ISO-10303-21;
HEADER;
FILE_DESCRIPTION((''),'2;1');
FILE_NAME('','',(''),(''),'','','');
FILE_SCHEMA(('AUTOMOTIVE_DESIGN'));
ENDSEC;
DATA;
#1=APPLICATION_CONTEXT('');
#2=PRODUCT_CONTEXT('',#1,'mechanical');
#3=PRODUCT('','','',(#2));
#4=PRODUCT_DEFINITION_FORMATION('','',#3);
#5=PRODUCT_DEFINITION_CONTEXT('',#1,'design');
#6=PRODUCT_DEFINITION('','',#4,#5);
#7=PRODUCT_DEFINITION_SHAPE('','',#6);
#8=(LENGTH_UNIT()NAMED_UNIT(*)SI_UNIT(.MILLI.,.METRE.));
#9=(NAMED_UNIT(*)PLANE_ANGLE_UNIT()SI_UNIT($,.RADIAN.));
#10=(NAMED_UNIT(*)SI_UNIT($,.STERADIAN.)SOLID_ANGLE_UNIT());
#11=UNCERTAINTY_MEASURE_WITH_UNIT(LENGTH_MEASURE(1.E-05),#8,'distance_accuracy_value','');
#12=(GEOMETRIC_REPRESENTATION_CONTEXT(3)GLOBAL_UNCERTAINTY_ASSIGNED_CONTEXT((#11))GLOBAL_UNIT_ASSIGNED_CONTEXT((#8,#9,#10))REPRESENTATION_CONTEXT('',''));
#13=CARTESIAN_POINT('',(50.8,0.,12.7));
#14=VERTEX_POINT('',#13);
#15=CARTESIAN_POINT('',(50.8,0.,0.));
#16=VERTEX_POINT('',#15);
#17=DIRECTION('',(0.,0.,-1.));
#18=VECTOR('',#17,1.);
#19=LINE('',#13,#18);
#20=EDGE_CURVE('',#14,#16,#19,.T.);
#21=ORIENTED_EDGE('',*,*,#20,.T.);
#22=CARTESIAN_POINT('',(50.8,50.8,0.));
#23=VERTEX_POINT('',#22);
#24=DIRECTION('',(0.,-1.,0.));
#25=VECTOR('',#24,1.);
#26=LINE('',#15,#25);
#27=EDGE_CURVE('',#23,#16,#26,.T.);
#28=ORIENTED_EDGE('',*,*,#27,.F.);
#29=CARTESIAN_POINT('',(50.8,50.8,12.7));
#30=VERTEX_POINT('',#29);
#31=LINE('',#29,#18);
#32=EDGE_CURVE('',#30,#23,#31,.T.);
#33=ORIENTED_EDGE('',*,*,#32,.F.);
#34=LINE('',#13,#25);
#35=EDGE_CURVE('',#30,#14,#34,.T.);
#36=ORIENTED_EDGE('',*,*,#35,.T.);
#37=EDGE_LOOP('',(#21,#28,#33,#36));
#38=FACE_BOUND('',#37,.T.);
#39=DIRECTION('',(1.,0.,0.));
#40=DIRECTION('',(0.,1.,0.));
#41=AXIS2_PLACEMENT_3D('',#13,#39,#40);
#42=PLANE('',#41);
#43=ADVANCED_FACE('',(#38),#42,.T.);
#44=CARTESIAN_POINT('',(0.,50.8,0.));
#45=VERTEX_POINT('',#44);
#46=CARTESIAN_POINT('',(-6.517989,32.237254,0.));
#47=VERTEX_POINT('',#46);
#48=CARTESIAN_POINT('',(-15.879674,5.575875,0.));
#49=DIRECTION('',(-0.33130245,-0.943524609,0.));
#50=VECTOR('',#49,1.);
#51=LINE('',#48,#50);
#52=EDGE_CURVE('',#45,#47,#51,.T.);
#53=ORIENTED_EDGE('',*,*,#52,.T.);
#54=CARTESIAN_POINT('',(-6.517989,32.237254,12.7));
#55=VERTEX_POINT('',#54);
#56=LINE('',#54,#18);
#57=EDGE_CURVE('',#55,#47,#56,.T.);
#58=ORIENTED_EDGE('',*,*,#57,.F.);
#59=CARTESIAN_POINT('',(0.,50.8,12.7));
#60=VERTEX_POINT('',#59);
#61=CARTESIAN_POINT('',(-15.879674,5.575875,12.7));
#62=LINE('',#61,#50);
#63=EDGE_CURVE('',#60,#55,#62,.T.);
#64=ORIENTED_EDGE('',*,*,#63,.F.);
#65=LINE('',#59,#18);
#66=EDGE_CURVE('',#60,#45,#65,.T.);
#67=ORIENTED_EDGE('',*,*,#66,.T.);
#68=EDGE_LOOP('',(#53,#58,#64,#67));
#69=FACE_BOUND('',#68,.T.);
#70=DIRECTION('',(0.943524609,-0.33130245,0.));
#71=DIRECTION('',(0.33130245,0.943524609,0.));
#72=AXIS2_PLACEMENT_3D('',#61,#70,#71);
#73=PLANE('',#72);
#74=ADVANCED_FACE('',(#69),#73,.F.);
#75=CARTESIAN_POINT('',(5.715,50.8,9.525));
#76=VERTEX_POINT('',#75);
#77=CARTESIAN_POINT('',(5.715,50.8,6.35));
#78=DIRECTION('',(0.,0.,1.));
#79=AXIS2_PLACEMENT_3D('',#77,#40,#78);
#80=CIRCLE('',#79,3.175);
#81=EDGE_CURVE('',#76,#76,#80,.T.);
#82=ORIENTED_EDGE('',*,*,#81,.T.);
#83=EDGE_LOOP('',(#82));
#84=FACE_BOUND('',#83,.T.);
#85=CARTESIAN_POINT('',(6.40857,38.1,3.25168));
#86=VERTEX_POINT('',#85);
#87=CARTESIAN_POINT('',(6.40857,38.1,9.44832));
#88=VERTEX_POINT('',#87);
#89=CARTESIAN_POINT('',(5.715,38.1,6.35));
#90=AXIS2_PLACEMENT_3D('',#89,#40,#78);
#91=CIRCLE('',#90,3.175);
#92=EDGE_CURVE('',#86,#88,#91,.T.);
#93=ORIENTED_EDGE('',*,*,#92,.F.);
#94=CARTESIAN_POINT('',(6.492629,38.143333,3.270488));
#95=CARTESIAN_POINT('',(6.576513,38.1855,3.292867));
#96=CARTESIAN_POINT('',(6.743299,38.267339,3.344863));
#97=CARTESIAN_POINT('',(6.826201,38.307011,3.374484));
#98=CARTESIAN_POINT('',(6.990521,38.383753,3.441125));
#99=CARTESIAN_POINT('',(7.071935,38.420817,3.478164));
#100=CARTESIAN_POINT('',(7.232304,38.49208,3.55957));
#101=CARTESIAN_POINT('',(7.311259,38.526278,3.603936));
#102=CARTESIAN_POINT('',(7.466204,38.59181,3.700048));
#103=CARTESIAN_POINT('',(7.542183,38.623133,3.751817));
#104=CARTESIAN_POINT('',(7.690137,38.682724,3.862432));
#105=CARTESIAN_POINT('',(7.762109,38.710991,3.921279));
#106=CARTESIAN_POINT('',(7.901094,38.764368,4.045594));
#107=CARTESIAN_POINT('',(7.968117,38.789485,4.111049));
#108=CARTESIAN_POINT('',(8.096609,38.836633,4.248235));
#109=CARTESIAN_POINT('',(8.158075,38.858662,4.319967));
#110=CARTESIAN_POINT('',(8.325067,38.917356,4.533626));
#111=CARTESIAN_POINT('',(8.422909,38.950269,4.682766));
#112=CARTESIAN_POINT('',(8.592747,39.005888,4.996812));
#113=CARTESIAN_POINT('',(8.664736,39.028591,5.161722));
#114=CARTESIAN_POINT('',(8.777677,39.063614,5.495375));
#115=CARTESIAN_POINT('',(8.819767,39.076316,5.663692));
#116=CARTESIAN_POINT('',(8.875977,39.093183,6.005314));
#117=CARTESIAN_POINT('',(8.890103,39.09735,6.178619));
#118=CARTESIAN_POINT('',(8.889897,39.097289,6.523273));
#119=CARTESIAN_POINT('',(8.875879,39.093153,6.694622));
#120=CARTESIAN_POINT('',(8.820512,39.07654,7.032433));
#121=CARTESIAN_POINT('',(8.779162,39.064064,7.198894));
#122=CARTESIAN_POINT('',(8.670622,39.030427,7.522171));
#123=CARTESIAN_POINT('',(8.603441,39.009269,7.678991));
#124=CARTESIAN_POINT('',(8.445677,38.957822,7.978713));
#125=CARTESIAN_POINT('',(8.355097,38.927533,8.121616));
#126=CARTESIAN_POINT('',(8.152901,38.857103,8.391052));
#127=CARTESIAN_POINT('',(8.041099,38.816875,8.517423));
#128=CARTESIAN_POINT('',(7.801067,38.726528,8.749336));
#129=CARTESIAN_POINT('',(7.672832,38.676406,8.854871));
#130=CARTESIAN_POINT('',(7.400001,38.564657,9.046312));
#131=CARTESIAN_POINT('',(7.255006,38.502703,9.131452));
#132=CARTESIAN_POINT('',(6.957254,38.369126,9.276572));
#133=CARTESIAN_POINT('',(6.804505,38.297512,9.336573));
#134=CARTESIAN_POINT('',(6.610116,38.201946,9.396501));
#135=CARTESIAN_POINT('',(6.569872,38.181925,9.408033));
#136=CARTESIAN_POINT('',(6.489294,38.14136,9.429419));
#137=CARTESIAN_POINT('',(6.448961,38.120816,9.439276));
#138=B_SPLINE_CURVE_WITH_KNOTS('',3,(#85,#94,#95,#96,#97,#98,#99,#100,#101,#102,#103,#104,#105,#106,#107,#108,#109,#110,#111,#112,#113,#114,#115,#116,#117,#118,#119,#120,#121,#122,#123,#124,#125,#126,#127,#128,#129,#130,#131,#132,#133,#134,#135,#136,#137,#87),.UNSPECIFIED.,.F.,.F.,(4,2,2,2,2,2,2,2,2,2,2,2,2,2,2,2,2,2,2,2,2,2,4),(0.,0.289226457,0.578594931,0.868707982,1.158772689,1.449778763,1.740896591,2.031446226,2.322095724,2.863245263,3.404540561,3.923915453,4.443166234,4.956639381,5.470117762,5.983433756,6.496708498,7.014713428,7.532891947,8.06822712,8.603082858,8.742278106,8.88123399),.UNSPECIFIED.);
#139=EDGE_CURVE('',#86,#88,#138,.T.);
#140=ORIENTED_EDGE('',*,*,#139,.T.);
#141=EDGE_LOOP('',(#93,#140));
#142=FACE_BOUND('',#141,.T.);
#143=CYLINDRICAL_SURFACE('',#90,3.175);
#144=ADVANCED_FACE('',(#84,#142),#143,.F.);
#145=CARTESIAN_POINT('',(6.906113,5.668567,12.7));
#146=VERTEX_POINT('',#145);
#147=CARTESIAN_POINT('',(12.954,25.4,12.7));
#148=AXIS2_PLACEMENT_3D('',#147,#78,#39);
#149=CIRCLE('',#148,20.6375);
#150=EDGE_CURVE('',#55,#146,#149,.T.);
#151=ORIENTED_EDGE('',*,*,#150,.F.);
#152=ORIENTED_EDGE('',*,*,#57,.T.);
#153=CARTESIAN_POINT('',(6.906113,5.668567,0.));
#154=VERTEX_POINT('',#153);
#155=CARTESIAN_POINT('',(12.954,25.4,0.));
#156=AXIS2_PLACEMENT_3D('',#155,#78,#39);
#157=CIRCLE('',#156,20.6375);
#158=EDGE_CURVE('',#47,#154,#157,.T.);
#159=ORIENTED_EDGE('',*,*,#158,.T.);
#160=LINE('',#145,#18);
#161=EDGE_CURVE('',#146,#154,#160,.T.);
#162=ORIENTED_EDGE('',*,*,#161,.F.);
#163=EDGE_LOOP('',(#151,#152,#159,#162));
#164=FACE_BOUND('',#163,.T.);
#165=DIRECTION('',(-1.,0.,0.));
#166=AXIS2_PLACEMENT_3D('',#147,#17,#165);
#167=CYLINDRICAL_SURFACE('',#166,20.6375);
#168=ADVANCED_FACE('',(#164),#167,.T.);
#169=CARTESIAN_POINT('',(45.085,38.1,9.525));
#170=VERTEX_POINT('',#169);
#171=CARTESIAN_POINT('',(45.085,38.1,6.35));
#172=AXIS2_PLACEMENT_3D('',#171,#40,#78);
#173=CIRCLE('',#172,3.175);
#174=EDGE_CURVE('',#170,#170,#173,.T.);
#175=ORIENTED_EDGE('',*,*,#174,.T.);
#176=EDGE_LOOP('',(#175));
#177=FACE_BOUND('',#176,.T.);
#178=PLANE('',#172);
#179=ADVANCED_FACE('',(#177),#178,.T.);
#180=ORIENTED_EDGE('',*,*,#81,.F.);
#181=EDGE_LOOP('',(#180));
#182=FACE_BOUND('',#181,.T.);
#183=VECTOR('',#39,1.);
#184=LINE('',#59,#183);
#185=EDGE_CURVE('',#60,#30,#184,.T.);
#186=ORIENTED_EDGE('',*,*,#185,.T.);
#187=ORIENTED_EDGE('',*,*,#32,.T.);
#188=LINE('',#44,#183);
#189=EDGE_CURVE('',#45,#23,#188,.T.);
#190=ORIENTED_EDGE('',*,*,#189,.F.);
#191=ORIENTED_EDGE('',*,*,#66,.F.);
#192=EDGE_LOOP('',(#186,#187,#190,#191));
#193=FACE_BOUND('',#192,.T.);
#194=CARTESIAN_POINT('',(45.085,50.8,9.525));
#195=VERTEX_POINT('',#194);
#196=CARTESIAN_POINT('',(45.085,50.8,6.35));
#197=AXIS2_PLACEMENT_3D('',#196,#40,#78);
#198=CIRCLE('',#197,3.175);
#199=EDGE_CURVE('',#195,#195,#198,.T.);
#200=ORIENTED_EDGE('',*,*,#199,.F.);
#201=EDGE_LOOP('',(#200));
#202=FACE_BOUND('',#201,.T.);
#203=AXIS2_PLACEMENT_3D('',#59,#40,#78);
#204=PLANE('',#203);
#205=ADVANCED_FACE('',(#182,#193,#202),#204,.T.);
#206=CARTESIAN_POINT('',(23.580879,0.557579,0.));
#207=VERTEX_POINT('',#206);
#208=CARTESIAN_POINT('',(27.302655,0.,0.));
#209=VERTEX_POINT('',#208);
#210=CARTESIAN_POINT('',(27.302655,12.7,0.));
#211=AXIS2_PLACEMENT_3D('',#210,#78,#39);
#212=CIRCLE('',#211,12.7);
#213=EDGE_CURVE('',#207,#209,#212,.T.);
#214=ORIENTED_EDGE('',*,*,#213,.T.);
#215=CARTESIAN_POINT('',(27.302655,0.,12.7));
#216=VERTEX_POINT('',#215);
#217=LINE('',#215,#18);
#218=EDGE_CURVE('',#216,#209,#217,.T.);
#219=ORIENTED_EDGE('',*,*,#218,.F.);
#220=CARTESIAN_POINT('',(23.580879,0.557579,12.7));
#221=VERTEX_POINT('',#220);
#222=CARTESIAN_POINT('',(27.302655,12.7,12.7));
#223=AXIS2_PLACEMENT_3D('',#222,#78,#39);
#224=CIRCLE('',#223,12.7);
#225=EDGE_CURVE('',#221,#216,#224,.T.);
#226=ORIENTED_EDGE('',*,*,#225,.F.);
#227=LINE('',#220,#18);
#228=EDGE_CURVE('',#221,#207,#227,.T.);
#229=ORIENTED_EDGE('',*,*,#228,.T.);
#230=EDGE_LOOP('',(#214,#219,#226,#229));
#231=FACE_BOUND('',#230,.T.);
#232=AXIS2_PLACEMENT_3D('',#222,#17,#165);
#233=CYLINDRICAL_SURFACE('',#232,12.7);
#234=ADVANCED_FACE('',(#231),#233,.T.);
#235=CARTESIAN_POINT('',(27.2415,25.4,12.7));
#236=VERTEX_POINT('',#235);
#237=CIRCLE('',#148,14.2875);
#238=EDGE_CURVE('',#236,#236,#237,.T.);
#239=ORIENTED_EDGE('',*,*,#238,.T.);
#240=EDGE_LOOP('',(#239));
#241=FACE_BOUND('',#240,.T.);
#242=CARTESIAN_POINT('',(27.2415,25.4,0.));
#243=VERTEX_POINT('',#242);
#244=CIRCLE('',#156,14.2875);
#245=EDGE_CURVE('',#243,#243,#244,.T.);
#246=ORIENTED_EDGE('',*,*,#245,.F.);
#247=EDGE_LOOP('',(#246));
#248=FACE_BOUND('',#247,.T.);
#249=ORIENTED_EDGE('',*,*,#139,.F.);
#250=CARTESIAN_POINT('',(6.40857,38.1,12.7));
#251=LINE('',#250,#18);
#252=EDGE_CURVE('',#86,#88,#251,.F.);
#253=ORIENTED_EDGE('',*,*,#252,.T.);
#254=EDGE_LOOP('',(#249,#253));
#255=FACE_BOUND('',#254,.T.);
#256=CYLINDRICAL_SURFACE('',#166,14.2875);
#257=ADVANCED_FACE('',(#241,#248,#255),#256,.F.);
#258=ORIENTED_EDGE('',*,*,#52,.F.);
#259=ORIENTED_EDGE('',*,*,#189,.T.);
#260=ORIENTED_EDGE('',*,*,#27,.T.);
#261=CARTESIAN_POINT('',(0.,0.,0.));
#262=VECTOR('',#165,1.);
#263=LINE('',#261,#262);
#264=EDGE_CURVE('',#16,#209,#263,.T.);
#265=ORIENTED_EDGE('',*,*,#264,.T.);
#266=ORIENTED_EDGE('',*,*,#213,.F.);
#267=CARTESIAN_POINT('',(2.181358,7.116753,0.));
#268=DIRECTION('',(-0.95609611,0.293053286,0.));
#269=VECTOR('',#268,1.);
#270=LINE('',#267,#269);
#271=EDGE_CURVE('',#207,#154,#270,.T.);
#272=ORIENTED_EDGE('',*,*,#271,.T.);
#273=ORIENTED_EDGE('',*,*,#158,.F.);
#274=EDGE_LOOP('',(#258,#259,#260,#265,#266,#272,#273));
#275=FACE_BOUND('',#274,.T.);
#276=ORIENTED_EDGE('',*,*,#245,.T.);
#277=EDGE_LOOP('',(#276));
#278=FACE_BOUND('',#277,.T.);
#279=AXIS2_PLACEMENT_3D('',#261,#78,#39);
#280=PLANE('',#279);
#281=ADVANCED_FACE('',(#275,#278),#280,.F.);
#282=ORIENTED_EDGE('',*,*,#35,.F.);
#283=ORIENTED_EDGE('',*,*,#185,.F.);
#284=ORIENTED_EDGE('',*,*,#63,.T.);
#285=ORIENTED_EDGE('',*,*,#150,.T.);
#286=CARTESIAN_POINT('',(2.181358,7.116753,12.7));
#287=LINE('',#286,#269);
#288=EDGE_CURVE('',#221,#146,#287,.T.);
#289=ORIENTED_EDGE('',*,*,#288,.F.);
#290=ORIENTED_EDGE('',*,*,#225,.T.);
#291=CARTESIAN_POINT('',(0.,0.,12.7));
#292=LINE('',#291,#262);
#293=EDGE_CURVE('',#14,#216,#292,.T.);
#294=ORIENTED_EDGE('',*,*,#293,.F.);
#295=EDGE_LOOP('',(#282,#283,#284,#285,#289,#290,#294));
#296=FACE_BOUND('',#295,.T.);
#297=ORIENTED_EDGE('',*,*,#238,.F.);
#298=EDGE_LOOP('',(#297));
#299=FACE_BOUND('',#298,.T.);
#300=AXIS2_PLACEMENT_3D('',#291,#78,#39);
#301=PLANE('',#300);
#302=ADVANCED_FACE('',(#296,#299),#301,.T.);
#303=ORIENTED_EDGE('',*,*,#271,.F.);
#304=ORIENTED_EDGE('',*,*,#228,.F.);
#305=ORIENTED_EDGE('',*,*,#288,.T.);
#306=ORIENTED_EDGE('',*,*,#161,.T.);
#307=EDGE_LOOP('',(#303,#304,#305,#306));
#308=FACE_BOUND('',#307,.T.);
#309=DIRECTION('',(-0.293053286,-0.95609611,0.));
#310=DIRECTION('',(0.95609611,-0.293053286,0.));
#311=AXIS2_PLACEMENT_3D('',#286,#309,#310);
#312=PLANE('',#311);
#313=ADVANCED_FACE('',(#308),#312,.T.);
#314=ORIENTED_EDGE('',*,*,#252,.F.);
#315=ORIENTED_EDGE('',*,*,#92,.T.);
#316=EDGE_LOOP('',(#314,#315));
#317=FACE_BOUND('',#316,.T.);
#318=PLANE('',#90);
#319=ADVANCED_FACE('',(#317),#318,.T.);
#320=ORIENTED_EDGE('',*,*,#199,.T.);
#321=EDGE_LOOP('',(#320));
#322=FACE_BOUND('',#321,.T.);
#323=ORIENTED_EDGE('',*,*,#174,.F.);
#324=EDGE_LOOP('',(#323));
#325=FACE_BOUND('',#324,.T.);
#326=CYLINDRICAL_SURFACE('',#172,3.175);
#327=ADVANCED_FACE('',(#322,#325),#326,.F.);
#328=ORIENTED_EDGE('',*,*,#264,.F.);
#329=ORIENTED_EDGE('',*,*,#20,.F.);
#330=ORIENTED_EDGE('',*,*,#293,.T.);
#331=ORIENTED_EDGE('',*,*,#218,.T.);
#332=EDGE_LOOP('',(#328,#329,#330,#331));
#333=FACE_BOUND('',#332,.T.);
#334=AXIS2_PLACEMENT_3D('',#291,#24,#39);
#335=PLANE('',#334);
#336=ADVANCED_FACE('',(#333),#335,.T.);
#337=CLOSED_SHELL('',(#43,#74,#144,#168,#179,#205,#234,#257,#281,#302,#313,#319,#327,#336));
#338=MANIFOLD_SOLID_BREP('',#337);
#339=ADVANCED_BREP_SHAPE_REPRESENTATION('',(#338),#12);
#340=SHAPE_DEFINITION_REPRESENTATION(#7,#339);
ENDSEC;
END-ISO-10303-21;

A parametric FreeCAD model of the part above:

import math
import FreeCAD as App
import Part
import Sketcher
Q = App.Units.Quantity

doc = App.newDocument("Part")
body = doc.addObject("PartDesign::Body", "Body")

# Sketch on XY plane
sketch1 = body.newObject("Sketcher::SketchObject", "Sketch")
sketch1.AttachmentSupport = (doc.getObject("XY_Plane"), [""])
sketch1.MapMode = "FlatFace"
sketch1.addGeometry([
    Part.LineSegment(App.Vector(50.8, 50.8, 0), App.Vector(0, 50.8, 0)),  # 0
    Part.LineSegment(App.Vector(0, 50.8, 0), App.Vector(-6.517989, 32.237254, 0)),  # 1
    Part.ArcOfCircle(Part.Circle(App.Vector(12.954, 25.4, 0), App.Vector(0, 0, 1), 20.6375), math.radians(160.652152), math.radians(252.959159)),  # 2
    Part.LineSegment(App.Vector(6.906113, 5.668567, 0), App.Vector(23.580879, 0.557579, 0)),  # 3
    Part.ArcOfCircle(Part.Circle(App.Vector(27.302655, 12.7, 0), App.Vector(0, 0, 1), 12.7), math.radians(-107.040841), math.radians(-90)),  # 4
    Part.LineSegment(App.Vector(27.302655, 0, 0), App.Vector(50.8, 0, 0)),  # 5
    Part.LineSegment(App.Vector(50.8, 0, 0), App.Vector(50.8, 50.8, 0)),  # 6
    Part.Circle(App.Vector(12.954, 25.4, 0), App.Vector(0, 0, 1), 14.2875),  # 7
], False)
sketch1.addConstraint([
    Sketcher.Constraint("Coincident", 0, 2, 1, 1),
    Sketcher.Constraint("Tangent", 1, 2, 2, 1),
    Sketcher.Constraint("Tangent", 2, 2, 3, 1),
    Sketcher.Constraint("Tangent", 3, 2, 4, 1),
    Sketcher.Constraint("Tangent", 4, 2, 5, 1),
    Sketcher.Constraint("Coincident", 5, 2, 6, 1),
    Sketcher.Constraint("Coincident", 6, 2, 0, 1),
    Sketcher.Constraint("Horizontal", 0),
    Sketcher.Constraint("Horizontal", 5),
    Sketcher.Constraint("Vertical", 6),
    Sketcher.Constraint("Coincident", 7, 3, 2, 3),
    Sketcher.Constraint("PointOnObject", 0, 2, -2),
    Sketcher.Constraint("PointOnObject", 4, 2, -1),
    Sketcher.Constraint("Equal", 0, 6),
    Sketcher.Constraint("Radius", 4, Q("0.5 in")),
    Sketcher.Constraint("DistanceX", 0, 2, 0, 1, Q("2 in")),
    Sketcher.Constraint("Diameter", 7, Q("1.125 in")),
    Sketcher.Constraint("DistanceY", -1, 1, 2, 3, Q("1 in")),
    Sketcher.Constraint("Radius", 2, Q("0.8125 in")),
    Sketcher.Constraint("DistanceX", -1, 1, 2, 3, Q("0.51 in")),
    Sketcher.Constraint("DistanceX", 1, 2, 2, 2, Q("13.424102 mm")),
])
pad1 = body.newObject("PartDesign::Pad", "Pad")
pad1.Profile = sketch1
pad1.Length = Q("0.5 in")

# Sketch on XZ plane
sketch2 = body.newObject("Sketcher::SketchObject", "Sketch001")
sketch2.AttachmentSupport = (doc.getObject("XZ_Plane"), [""])
sketch2.MapMode = "FlatFace"
sketch2.AttachmentOffset = App.Placement(App.Vector(0, 0, -2 * 25.4), App.Rotation())
sketch2.addGeometry([
    Part.Circle(App.Vector(45.085, 6.35, 0), App.Vector(0, 0, 1), 3.175),
    Part.Circle(App.Vector(5.715, 6.35, 0), App.Vector(0, 0, 1), 3.175),
], False)
sketch2.addConstraint([
    Sketcher.Constraint("Equal", 0, 1),
    Sketcher.Constraint("Horizontal", 0, 3, 1, 3),
    Sketcher.Constraint("Diameter", 0, Q("0.25 in")),
    Sketcher.Constraint("DistanceY", -1, 1, 0, 3, Q("0.25 in")),
    Sketcher.Constraint("DistanceX", 1, 3, 0, 3, Q("1.55 in")),
    Sketcher.Constraint("DistanceX", -1, 1, 0, 3, Q("1.775 in")),
])
pocket1 = body.newObject("PartDesign::Pocket", "Pocket")
pocket1.Profile = sketch2
pocket1.Length = Q("0.5 in")
pocket1.Reversed = True

doc.recompute()
